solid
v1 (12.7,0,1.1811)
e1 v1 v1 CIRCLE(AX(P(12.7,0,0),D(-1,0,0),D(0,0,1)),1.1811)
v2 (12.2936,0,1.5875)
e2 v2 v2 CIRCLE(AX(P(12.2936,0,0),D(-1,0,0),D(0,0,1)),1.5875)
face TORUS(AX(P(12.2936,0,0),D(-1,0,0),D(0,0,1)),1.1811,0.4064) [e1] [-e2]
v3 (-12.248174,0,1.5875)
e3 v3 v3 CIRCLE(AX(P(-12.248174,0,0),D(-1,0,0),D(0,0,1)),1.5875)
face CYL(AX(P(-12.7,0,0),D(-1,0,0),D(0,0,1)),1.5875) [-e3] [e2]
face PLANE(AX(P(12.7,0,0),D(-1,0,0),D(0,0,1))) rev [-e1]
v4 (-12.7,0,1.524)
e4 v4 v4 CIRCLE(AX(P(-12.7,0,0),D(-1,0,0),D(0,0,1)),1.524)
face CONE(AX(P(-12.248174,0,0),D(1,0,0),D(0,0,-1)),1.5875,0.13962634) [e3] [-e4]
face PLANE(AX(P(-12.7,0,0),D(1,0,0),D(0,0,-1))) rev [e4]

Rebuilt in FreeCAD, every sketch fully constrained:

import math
import FreeCAD as App
import Part
import Sketcher
from FreeCAD import Vector
Q = App.Units.Quantity

doc = App.newDocument("Part")
params = doc.addObject("Spreadsheet::Sheet", "Params")
for row, (alias, value) in enumerate([
    ("sketch1_width", "1 in"),
    ("sketch1_radius", "0.016 in"),
    ("sketch1_height", "0.06 in"),
    ("revolution_angle", "360 deg"),
], start=1):
    params.set(f"A{row}", alias)
    params.set(f"B{row}", "=" + value)
    params.setAlias(f"B{row}", alias)

body = doc.addObject("PartDesign::Body", "Body")

# Sketch on XY plane
sketch1 = doc.addObject("Sketcher::SketchObject", "Sketch")
body.addObject(sketch1)
sketch1.AttachmentSupport = (doc.XY_Plane, [""])
sketch1.MapMode = "FlatFace"
sketch1.addGeometry([
    Part.LineSegment(Vector(-12.7, 0, 0), Vector(12.7, 0, 0)),  # 0
    Part.LineSegment(Vector(12.7, 0, 0), Vector(12.7, 1.18, 0)),  # 1
    Part.ArcOfCircle(Part.Circle(Vector(12.29, 1.18, 0), Vector(0, 0, 1), 0.41), math.radians(0), math.radians(90)),  # 2
    Part.LineSegment(Vector(12.29, 1.59, 0), Vector(-12.25, 1.59, 0)),  # 3
    Part.LineSegment(Vector(-12.25, 1.59, 0), Vector(-12.7, 1.52, 0)),  # 4
    Part.LineSegment(Vector(-12.7, 1.52, 0), Vector(-12.7, 0, 0)),  # 5
], False)
sketch1.addConstraint([
    Sketcher.Constraint("Coincident", 0, 2, 1, 1),
    Sketcher.Constraint("Tangent", 1, 2, 2, 1),
    Sketcher.Constraint("Tangent", 2, 2, 3, 1),
    Sketcher.Constraint("Coincident", 3, 2, 4, 1),
    Sketcher.Constraint("Coincident", 4, 2, 5, 1),
    Sketcher.Constraint("Coincident", 5, 2, 0, 1),
    Sketcher.Constraint("Horizontal", 0),
    Sketcher.Constraint("Vertical", 1),
    Sketcher.Constraint("Horizontal", 3),
    Sketcher.Constraint("Vertical", 5),
    Sketcher.Constraint("Symmetric", 0, 2, 5, 2, -1, 1),
    Sketcher.Constraint("DistanceX", 0, 1, 0, 2, Q("1 in")),
    Sketcher.Constraint("Angle", 4, Q("-172 deg")),
    Sketcher.Constraint("Radius", 2, Q("0.016 in")),
    Sketcher.Constraint("DistanceY", 5, 2, 5, 1, Q("0.06 in")),
    Sketcher.Constraint("DistanceY", 1, 1, 1, 2, Q("0.0465 in")),
])
sketch1.setExpression("Constraints[11]", "Params.sketch1_width")
sketch1.setExpression("Constraints[13]", "Params.sketch1_radius")
sketch1.setExpression("Constraints[14]", "Params.sketch1_height")
revolution = doc.addObject("PartDesign::Revolution", "Revolution")
body.addObject(revolution)
revolution.Profile = sketch1
revolution.ReferenceAxis = (sketch1, ["H_Axis"])
revolution.setExpression("Angle", "Params.revolution_angle")

doc.recompute()
